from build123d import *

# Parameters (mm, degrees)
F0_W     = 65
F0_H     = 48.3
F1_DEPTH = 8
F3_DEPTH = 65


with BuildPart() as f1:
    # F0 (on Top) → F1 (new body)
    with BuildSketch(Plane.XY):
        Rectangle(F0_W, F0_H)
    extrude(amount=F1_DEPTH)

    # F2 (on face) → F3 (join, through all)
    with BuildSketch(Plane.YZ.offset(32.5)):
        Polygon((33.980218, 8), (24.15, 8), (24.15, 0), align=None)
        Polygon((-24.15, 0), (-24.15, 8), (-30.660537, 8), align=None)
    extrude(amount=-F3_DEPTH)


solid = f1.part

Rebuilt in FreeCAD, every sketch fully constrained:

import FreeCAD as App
import Part
import Sketcher

V = App.Vector
Q = App.Units.Quantity

doc = App.newDocument("Part")
body = doc.addObject("PartDesign::Body", "Body")

# Sketch on XY plane
sketch1 = doc.addObject("Sketcher::SketchObject", "Sketch")
body.addObject(sketch1)
sketch1.AttachmentSupport = (doc.XY_Plane, [""])
sketch1.MapMode = "FlatFace"
sketch1.addGeometry([
    Part.LineSegment(V(-32.5, 24.15, 0), V(-32.5, -24.15, 0)),
    Part.LineSegment(V(-32.5, -24.15, 0), V(32.5, -24.15, 0)),
    Part.LineSegment(V(32.5, -24.15, 0), V(32.5, 24.15, 0)),
    Part.LineSegment(V(32.5, 24.15, 0), V(-32.5, 24.15, 0)),
], False)
sketch1.addConstraint([
    Sketcher.Constraint("Coincident", 0, 2, 1, 1),
    Sketcher.Constraint("Coincident", 1, 2, 2, 1),
    Sketcher.Constraint("Coincident", 2, 2, 3, 1),
    Sketcher.Constraint("Coincident", 3, 2, 0, 1),
    Sketcher.Constraint("Vertical", 0),
    Sketcher.Constraint("Horizontal", 1),
    Sketcher.Constraint("Vertical", 2),
    Sketcher.Constraint("Horizontal", 3),
    Sketcher.Constraint("Symmetric", 0, 2, 2, 2, -1, 1),
    Sketcher.Constraint("DistanceX", 1, 1, 1, 2, Q("65 mm")),
    Sketcher.Constraint("DistanceY", 0, 2, 0, 1, Q("48.3 mm")),
])
pad1 = doc.addObject("PartDesign::Pad", "Pad")
body.addObject(pad1)
pad1.Profile = sketch1
pad1.Length = 8

# Sketch on YZ plane
sketch2 = doc.addObject("Sketcher::SketchObject", "Sketch001")
body.addObject(sketch2)
sketch2.AttachmentSupport = (doc.YZ_Plane, [""])
sketch2.MapMode = "FlatFace"
sketch2.AttachmentOffset = App.Placement(V(0, 0, 32.5), App.Rotation())
sketch2.addGeometry([
    Part.LineSegment(V(33.980218, 8, 0), V(24.15, 8, 0)),  # 0
    Part.LineSegment(V(24.15, 8, 0), V(24.15, 0, 0)),  # 1
    Part.LineSegment(V(24.15, 0, 0), V(33.980218, 8, 0)),  # 2
    Part.LineSegment(V(-24.15, 0, 0), V(-24.15, 8, 0)),  # 3
    Part.LineSegment(V(-24.15, 8, 0), V(-30.660537, 8, 0)),  # 4
    Part.LineSegment(V(-30.660537, 8, 0), V(-24.15, 0, 0)),  # 5
], False)
sketch2.addConstraint([
    Sketcher.Constraint("Coincident", 0, 2, 1, 1),
    Sketcher.Constraint("Coincident", 1, 2, 2, 1),
    Sketcher.Constraint("Coincident", 2, 2, 0, 1),
    Sketcher.Constraint("Coincident", 3, 2, 4, 1),
    Sketcher.Constraint("Coincident", 4, 2, 5, 1),
    Sketcher.Constraint("Coincident", 5, 2, 3, 1),
    Sketcher.Constraint("Horizontal", 0),
    Sketcher.Constraint("Vertical", 1),
    Sketcher.Constraint("Vertical", 3),
    Sketcher.Constraint("Horizontal", 4),
    Sketcher.Constraint("Symmetric", 1, 2, 5, 2, -1, 1),
    Sketcher.Constraint("PointOnObject", 1, 2, -1),
    Sketcher.Constraint("Perpendicular", 2, 5),
    Sketcher.Constraint("Horizontal", 2, 2, 3, 2),
    Sketcher.Constraint("DistanceY", 1, 2, 1, 1, Q("8 mm")),
    Sketcher.Constraint("DistanceX", 3, 2, 0, 2, Q("48.3 mm")),
    Sketcher.Constraint("DistanceX", 0, 2, 0, 1, Q("9.830218 mm")),
])
pad2 = doc.addObject("PartDesign::Pad", "Pad001")
body.addObject(pad2)
pad2.Profile = sketch2
pad2.Type = "UpToLast"
pad2.Reversed = True

doc.recompute()
